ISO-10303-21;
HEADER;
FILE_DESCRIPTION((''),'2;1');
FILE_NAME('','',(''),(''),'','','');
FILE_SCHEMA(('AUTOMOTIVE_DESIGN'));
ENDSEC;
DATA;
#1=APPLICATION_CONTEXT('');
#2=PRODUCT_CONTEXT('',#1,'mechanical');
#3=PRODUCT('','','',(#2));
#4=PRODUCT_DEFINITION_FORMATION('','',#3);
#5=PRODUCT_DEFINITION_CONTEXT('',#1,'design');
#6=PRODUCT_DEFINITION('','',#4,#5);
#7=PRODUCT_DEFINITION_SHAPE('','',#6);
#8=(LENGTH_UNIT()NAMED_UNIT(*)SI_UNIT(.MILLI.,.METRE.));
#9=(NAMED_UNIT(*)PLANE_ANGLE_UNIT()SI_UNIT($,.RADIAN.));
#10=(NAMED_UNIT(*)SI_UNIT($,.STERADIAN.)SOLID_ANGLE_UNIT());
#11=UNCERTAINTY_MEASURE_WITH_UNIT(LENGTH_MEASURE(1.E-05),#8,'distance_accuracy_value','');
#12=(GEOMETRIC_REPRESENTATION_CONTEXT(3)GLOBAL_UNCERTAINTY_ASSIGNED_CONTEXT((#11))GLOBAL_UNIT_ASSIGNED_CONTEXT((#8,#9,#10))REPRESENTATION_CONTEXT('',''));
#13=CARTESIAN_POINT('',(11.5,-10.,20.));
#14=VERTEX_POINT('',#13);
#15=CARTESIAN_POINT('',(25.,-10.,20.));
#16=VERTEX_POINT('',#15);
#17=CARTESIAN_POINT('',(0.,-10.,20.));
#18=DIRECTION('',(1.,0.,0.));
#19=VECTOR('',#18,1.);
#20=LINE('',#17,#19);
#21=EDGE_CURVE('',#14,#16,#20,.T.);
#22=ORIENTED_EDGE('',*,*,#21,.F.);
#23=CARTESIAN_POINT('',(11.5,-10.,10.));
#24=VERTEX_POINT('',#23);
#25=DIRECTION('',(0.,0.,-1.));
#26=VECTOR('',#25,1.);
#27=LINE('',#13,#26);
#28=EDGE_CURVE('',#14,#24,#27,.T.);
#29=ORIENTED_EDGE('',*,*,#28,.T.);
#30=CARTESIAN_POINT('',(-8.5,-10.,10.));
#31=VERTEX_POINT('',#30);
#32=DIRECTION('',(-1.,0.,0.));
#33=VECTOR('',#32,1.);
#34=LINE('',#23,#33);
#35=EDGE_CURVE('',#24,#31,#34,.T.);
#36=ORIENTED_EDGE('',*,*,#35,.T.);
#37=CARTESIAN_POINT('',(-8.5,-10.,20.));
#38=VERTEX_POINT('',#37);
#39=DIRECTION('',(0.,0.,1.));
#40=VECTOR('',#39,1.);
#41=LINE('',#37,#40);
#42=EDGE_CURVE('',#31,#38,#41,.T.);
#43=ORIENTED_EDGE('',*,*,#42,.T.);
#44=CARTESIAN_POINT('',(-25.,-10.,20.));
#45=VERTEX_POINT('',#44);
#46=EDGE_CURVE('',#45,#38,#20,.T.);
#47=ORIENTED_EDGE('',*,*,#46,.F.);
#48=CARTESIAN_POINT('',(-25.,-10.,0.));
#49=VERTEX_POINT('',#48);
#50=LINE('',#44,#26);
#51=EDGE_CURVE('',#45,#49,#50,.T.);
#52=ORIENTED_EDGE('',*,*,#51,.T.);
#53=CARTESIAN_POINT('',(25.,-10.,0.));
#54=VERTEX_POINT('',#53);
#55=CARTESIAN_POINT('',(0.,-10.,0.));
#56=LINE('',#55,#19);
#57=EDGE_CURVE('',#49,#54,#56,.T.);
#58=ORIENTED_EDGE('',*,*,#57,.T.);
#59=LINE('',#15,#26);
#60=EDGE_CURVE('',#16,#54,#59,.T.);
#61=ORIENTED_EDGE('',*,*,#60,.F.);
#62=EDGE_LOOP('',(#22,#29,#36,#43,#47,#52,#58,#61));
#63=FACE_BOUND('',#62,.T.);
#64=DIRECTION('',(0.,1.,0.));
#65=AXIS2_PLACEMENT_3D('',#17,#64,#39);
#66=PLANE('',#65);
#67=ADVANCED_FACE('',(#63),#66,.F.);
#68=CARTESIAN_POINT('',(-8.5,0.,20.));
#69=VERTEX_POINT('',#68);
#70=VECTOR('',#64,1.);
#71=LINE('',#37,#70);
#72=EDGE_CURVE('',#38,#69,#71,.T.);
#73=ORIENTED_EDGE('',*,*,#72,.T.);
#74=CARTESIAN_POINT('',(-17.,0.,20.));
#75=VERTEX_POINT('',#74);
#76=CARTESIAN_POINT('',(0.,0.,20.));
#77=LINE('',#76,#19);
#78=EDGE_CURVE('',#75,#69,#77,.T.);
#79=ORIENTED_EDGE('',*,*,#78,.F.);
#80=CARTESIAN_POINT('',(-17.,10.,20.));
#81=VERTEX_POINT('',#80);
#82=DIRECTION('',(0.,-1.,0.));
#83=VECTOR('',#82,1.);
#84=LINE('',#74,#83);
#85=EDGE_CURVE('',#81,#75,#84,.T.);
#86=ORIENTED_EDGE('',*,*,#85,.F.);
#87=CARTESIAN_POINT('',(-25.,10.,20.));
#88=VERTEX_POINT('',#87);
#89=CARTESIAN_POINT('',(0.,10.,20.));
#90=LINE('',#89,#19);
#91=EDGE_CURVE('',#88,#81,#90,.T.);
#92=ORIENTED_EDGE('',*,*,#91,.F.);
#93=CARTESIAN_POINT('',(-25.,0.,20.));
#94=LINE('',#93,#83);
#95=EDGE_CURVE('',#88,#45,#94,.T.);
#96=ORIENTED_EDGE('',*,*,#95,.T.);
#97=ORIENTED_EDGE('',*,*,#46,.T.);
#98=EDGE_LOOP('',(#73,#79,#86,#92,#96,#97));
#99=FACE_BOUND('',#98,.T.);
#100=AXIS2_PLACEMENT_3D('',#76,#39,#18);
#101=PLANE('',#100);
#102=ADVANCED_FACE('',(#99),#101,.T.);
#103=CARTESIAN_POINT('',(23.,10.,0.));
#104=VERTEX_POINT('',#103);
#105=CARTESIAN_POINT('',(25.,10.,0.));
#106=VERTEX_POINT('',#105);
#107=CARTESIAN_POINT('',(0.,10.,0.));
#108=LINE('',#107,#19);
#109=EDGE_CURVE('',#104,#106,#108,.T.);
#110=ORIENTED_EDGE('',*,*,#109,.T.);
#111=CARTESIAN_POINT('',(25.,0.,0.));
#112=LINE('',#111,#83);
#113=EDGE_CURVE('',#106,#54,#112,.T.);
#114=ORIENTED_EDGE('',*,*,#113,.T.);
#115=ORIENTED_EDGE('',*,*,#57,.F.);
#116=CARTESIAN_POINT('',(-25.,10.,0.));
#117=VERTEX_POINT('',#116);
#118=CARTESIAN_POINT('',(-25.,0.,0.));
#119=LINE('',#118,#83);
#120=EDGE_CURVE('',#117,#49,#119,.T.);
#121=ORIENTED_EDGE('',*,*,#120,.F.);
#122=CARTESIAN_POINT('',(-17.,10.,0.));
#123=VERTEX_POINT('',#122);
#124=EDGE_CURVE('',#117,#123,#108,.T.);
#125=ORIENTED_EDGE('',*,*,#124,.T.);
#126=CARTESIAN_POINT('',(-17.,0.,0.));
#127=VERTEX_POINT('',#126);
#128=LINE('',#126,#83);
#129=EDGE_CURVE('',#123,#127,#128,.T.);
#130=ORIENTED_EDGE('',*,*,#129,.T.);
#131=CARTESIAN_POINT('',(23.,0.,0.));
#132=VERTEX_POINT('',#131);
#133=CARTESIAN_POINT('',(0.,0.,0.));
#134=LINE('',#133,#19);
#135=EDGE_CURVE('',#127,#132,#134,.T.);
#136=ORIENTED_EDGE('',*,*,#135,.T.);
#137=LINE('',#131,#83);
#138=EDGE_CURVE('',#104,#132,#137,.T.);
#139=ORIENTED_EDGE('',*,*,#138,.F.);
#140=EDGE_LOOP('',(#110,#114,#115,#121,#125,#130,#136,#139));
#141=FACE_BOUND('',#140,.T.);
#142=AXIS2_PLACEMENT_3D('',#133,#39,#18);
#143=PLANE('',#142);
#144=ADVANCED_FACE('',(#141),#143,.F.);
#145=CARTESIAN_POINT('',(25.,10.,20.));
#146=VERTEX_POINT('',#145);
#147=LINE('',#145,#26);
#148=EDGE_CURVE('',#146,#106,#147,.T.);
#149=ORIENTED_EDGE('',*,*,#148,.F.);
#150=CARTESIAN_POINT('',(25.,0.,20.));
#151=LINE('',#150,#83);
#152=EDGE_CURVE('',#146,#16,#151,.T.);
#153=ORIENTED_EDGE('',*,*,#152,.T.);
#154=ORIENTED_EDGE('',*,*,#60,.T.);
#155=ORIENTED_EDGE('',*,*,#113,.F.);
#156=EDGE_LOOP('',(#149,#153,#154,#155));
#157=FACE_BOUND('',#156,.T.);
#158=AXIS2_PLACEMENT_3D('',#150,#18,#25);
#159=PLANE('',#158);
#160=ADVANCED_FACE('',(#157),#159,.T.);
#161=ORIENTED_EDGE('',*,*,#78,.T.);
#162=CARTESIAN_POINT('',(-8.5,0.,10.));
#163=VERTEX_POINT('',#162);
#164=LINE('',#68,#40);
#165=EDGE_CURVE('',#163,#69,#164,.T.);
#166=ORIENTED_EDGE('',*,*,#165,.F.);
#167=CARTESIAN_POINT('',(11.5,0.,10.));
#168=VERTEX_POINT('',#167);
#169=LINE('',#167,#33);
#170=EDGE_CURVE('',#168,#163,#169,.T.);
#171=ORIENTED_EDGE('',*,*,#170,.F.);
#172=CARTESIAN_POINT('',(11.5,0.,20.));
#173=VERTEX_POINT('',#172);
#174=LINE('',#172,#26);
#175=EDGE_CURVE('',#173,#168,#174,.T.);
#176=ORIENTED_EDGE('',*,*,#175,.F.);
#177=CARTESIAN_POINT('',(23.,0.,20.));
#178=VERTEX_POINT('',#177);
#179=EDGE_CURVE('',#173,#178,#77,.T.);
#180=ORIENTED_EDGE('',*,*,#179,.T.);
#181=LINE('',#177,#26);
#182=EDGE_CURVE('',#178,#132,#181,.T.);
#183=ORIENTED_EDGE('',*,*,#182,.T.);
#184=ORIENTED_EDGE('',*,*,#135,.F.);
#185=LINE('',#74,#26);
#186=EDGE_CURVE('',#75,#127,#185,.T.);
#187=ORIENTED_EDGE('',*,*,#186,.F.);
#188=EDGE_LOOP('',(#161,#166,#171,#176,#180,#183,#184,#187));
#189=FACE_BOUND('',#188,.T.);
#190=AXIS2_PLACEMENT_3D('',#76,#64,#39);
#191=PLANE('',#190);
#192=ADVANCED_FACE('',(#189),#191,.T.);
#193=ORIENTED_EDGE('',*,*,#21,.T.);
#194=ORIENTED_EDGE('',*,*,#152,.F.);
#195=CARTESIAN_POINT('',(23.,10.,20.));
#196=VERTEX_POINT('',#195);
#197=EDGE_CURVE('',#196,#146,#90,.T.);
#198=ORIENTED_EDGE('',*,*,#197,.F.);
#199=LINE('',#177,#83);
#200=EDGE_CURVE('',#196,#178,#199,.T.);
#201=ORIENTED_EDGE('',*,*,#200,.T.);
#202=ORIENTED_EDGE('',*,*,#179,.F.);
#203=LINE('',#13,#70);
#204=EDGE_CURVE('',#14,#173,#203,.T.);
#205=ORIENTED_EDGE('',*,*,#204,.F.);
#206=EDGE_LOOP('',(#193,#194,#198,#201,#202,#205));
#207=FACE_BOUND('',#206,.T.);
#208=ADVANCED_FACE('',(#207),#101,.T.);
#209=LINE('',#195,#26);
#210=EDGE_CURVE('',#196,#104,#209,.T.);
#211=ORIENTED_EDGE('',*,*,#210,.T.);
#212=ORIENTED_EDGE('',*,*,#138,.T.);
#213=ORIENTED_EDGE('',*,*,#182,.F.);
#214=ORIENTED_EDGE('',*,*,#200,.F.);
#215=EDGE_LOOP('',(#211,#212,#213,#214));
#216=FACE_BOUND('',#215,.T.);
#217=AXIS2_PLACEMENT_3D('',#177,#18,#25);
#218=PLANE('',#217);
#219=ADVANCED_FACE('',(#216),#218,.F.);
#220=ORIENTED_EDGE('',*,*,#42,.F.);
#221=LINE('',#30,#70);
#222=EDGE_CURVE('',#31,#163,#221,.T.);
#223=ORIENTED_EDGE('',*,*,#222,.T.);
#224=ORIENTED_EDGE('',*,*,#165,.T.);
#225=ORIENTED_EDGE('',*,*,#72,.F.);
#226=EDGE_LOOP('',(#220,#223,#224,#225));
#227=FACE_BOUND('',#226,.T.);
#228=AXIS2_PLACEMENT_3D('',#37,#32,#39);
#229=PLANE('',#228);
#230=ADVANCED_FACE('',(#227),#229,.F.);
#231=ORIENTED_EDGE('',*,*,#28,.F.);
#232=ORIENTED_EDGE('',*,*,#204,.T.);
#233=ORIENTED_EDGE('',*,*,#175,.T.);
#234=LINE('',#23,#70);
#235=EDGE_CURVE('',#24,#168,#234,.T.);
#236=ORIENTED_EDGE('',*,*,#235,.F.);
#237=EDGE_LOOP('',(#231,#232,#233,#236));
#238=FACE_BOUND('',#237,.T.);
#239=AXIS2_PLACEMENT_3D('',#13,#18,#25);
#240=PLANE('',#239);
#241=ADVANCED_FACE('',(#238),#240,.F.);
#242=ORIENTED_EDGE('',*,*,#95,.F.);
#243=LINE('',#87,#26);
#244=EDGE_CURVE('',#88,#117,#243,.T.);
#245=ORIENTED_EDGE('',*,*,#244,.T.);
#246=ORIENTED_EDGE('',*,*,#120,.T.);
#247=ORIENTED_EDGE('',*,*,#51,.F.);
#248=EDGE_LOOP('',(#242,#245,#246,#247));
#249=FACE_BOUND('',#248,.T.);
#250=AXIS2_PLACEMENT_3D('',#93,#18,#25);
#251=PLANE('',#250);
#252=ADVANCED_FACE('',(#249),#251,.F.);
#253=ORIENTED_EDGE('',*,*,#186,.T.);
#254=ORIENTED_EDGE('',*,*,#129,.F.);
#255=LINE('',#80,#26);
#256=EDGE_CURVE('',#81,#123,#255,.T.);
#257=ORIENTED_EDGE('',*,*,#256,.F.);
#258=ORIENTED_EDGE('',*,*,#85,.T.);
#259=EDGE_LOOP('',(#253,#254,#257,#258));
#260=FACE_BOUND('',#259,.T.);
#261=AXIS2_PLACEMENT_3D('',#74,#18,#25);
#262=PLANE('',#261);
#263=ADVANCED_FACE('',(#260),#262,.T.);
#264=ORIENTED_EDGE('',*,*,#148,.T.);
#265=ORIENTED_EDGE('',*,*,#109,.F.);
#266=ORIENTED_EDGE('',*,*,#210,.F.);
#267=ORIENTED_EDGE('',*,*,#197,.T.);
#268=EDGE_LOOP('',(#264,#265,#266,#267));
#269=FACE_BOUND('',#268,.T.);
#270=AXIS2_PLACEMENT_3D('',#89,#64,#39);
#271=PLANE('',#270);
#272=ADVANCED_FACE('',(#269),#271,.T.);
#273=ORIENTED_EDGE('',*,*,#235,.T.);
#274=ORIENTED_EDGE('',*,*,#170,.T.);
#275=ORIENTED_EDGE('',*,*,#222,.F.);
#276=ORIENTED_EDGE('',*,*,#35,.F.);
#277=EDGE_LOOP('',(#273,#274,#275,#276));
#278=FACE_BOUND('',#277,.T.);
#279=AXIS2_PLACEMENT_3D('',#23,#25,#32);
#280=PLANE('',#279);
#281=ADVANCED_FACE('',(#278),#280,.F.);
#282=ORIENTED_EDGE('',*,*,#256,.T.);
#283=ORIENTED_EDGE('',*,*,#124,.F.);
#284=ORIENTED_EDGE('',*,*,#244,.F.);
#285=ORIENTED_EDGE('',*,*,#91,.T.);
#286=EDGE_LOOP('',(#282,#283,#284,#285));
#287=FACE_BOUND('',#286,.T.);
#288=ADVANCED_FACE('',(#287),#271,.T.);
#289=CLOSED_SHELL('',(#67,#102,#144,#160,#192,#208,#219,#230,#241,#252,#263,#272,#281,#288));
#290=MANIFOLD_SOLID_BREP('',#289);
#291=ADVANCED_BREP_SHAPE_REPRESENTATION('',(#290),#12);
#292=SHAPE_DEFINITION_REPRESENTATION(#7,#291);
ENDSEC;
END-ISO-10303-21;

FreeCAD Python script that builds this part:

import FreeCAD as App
import Part
import Sketcher

V = App.Vector


def add_polygon(sketch, points):
    """Adds a closed chain of lines whose ends are joined by coincident constraints."""
    first, n = sketch.GeometryCount, len(points)
    for a, b in zip(points, points[1:] + points[:1]):
        sketch.addGeometry(Part.LineSegment(App.Vector(*a, 0), App.Vector(*b, 0)), False)
    for i in range(n):
        sketch.addConstraint(Sketcher.Constraint("Coincident", first + i, 2, first + (i + 1) % n, 1))

doc = App.newDocument("Part")
params = doc.addObject("Spreadsheet::Sheet", "Params")
for row, (alias, value) in enumerate([
    ("sketch1_width", "8 mm"),
    ("sketch1_width2", "50 mm"),
    ("sketch1_width3", "2 mm"),
    ("sketch1_height", "20 mm"),
    ("pad1_length", "20 mm"),
    ("sketch2_width", "20 mm"),
    ("sketch2_height", "10 mm"),
    ("pocket1_length", "10 mm"),
], start=1):
    params.set(f"A{row}", alias)
    params.set(f"B{row}", "=" + value)
    params.setAlias(f"B{row}", alias)

body = doc.addObject("PartDesign::Body", "Body")

# Sketch on XY plane
sketch1 = body.newObject("Sketcher::SketchObject", "Sketch")
sketch1.AttachmentSupport = (doc.getObject("XY_Plane"), [""])
sketch1.MapMode = "FlatFace"
add_polygon(sketch1, [(-17, 10), (-25, 10), (-25, -10), (25, -10), (25, 10), (23, 10), (23, 0), (-17, 0)])  # lines 0-7
sketch1.addConstraint([
    Sketcher.Constraint("Horizontal", 0),
    Sketcher.Constraint("Vertical", 1),
    Sketcher.Constraint("Horizontal", 2),
    Sketcher.Constraint("Vertical", 3),
    Sketcher.Constraint("Horizontal", 4),
    Sketcher.Constraint("Vertical", 5),
    Sketcher.Constraint("Horizontal", 6),
    Sketcher.Constraint("Vertical", 7),
    Sketcher.Constraint("Symmetric", 0, 2, 2, 2, -1, 1),
    Sketcher.Constraint("PointOnObject", 5, 2, -1),
    Sketcher.Constraint("Horizontal", 0, 2, 3, 2),
    Sketcher.Constraint("DistanceX", 0, 2, 0, 1, 8.0),
    Sketcher.Constraint("DistanceX", 2, 1, 2, 2, 50.0),
    Sketcher.Constraint("DistanceX", 4, 2, 4, 1, 2.0),
    Sketcher.Constraint("DistanceY", 1, 2, 1, 1, 20.0),
])
sketch1.setExpression("Constraints[19]", "Params.sketch1_width")
sketch1.setExpression("Constraints[20]", "Params.sketch1_width2")
sketch1.setExpression("Constraints[21]", "Params.sketch1_width3")
sketch1.setExpression("Constraints[22]", "Params.sketch1_height")
pad1 = body.newObject("PartDesign::Pad", "Pad")
pad1.Profile = sketch1
pad1.setExpression("Length", "Params.pad1_length")

# Sketch on XZ plane
sketch2 = body.newObject("Sketcher::SketchObject", "Sketch001")
sketch2.AttachmentSupport = (doc.getObject("XZ_Plane"), [""])
sketch2.MapMode = "FlatFace"
add_polygon(sketch2, [(-8.5, 10), (-8.5, 20), (11.5, 20), (11.5, 10)])  # lines 0-3
sketch2.addConstraint([
    Sketcher.Constraint("Vertical", 0),
    Sketcher.Constraint("Horizontal", 1),
    Sketcher.Constraint("Vertical", 2),
    Sketcher.Constraint("Horizontal", 3),
    Sketcher.Constraint("DistanceX", 1, 1, 1, 2, 20.0),
    Sketcher.Constraint("DistanceY", 0, 1, 0, 2, 10.0),
    Sketcher.Constraint("DistanceY", -1, 1, 0, 2, 20.0),
    Sketcher.Constraint("DistanceX", 0, 2, -1, 1, 8.5),
])
sketch2.setExpression("Constraints[8]", "Params.sketch2_width")
sketch2.setExpression("Constraints[9]", "Params.sketch2_height")
pocket1 = body.newObject("PartDesign::Pocket", "Pocket")
pocket1.Profile = sketch2
pocket1.setExpression("Length", "Params.pocket1_length")
pocket1.Reversed = True

doc.recompute()
